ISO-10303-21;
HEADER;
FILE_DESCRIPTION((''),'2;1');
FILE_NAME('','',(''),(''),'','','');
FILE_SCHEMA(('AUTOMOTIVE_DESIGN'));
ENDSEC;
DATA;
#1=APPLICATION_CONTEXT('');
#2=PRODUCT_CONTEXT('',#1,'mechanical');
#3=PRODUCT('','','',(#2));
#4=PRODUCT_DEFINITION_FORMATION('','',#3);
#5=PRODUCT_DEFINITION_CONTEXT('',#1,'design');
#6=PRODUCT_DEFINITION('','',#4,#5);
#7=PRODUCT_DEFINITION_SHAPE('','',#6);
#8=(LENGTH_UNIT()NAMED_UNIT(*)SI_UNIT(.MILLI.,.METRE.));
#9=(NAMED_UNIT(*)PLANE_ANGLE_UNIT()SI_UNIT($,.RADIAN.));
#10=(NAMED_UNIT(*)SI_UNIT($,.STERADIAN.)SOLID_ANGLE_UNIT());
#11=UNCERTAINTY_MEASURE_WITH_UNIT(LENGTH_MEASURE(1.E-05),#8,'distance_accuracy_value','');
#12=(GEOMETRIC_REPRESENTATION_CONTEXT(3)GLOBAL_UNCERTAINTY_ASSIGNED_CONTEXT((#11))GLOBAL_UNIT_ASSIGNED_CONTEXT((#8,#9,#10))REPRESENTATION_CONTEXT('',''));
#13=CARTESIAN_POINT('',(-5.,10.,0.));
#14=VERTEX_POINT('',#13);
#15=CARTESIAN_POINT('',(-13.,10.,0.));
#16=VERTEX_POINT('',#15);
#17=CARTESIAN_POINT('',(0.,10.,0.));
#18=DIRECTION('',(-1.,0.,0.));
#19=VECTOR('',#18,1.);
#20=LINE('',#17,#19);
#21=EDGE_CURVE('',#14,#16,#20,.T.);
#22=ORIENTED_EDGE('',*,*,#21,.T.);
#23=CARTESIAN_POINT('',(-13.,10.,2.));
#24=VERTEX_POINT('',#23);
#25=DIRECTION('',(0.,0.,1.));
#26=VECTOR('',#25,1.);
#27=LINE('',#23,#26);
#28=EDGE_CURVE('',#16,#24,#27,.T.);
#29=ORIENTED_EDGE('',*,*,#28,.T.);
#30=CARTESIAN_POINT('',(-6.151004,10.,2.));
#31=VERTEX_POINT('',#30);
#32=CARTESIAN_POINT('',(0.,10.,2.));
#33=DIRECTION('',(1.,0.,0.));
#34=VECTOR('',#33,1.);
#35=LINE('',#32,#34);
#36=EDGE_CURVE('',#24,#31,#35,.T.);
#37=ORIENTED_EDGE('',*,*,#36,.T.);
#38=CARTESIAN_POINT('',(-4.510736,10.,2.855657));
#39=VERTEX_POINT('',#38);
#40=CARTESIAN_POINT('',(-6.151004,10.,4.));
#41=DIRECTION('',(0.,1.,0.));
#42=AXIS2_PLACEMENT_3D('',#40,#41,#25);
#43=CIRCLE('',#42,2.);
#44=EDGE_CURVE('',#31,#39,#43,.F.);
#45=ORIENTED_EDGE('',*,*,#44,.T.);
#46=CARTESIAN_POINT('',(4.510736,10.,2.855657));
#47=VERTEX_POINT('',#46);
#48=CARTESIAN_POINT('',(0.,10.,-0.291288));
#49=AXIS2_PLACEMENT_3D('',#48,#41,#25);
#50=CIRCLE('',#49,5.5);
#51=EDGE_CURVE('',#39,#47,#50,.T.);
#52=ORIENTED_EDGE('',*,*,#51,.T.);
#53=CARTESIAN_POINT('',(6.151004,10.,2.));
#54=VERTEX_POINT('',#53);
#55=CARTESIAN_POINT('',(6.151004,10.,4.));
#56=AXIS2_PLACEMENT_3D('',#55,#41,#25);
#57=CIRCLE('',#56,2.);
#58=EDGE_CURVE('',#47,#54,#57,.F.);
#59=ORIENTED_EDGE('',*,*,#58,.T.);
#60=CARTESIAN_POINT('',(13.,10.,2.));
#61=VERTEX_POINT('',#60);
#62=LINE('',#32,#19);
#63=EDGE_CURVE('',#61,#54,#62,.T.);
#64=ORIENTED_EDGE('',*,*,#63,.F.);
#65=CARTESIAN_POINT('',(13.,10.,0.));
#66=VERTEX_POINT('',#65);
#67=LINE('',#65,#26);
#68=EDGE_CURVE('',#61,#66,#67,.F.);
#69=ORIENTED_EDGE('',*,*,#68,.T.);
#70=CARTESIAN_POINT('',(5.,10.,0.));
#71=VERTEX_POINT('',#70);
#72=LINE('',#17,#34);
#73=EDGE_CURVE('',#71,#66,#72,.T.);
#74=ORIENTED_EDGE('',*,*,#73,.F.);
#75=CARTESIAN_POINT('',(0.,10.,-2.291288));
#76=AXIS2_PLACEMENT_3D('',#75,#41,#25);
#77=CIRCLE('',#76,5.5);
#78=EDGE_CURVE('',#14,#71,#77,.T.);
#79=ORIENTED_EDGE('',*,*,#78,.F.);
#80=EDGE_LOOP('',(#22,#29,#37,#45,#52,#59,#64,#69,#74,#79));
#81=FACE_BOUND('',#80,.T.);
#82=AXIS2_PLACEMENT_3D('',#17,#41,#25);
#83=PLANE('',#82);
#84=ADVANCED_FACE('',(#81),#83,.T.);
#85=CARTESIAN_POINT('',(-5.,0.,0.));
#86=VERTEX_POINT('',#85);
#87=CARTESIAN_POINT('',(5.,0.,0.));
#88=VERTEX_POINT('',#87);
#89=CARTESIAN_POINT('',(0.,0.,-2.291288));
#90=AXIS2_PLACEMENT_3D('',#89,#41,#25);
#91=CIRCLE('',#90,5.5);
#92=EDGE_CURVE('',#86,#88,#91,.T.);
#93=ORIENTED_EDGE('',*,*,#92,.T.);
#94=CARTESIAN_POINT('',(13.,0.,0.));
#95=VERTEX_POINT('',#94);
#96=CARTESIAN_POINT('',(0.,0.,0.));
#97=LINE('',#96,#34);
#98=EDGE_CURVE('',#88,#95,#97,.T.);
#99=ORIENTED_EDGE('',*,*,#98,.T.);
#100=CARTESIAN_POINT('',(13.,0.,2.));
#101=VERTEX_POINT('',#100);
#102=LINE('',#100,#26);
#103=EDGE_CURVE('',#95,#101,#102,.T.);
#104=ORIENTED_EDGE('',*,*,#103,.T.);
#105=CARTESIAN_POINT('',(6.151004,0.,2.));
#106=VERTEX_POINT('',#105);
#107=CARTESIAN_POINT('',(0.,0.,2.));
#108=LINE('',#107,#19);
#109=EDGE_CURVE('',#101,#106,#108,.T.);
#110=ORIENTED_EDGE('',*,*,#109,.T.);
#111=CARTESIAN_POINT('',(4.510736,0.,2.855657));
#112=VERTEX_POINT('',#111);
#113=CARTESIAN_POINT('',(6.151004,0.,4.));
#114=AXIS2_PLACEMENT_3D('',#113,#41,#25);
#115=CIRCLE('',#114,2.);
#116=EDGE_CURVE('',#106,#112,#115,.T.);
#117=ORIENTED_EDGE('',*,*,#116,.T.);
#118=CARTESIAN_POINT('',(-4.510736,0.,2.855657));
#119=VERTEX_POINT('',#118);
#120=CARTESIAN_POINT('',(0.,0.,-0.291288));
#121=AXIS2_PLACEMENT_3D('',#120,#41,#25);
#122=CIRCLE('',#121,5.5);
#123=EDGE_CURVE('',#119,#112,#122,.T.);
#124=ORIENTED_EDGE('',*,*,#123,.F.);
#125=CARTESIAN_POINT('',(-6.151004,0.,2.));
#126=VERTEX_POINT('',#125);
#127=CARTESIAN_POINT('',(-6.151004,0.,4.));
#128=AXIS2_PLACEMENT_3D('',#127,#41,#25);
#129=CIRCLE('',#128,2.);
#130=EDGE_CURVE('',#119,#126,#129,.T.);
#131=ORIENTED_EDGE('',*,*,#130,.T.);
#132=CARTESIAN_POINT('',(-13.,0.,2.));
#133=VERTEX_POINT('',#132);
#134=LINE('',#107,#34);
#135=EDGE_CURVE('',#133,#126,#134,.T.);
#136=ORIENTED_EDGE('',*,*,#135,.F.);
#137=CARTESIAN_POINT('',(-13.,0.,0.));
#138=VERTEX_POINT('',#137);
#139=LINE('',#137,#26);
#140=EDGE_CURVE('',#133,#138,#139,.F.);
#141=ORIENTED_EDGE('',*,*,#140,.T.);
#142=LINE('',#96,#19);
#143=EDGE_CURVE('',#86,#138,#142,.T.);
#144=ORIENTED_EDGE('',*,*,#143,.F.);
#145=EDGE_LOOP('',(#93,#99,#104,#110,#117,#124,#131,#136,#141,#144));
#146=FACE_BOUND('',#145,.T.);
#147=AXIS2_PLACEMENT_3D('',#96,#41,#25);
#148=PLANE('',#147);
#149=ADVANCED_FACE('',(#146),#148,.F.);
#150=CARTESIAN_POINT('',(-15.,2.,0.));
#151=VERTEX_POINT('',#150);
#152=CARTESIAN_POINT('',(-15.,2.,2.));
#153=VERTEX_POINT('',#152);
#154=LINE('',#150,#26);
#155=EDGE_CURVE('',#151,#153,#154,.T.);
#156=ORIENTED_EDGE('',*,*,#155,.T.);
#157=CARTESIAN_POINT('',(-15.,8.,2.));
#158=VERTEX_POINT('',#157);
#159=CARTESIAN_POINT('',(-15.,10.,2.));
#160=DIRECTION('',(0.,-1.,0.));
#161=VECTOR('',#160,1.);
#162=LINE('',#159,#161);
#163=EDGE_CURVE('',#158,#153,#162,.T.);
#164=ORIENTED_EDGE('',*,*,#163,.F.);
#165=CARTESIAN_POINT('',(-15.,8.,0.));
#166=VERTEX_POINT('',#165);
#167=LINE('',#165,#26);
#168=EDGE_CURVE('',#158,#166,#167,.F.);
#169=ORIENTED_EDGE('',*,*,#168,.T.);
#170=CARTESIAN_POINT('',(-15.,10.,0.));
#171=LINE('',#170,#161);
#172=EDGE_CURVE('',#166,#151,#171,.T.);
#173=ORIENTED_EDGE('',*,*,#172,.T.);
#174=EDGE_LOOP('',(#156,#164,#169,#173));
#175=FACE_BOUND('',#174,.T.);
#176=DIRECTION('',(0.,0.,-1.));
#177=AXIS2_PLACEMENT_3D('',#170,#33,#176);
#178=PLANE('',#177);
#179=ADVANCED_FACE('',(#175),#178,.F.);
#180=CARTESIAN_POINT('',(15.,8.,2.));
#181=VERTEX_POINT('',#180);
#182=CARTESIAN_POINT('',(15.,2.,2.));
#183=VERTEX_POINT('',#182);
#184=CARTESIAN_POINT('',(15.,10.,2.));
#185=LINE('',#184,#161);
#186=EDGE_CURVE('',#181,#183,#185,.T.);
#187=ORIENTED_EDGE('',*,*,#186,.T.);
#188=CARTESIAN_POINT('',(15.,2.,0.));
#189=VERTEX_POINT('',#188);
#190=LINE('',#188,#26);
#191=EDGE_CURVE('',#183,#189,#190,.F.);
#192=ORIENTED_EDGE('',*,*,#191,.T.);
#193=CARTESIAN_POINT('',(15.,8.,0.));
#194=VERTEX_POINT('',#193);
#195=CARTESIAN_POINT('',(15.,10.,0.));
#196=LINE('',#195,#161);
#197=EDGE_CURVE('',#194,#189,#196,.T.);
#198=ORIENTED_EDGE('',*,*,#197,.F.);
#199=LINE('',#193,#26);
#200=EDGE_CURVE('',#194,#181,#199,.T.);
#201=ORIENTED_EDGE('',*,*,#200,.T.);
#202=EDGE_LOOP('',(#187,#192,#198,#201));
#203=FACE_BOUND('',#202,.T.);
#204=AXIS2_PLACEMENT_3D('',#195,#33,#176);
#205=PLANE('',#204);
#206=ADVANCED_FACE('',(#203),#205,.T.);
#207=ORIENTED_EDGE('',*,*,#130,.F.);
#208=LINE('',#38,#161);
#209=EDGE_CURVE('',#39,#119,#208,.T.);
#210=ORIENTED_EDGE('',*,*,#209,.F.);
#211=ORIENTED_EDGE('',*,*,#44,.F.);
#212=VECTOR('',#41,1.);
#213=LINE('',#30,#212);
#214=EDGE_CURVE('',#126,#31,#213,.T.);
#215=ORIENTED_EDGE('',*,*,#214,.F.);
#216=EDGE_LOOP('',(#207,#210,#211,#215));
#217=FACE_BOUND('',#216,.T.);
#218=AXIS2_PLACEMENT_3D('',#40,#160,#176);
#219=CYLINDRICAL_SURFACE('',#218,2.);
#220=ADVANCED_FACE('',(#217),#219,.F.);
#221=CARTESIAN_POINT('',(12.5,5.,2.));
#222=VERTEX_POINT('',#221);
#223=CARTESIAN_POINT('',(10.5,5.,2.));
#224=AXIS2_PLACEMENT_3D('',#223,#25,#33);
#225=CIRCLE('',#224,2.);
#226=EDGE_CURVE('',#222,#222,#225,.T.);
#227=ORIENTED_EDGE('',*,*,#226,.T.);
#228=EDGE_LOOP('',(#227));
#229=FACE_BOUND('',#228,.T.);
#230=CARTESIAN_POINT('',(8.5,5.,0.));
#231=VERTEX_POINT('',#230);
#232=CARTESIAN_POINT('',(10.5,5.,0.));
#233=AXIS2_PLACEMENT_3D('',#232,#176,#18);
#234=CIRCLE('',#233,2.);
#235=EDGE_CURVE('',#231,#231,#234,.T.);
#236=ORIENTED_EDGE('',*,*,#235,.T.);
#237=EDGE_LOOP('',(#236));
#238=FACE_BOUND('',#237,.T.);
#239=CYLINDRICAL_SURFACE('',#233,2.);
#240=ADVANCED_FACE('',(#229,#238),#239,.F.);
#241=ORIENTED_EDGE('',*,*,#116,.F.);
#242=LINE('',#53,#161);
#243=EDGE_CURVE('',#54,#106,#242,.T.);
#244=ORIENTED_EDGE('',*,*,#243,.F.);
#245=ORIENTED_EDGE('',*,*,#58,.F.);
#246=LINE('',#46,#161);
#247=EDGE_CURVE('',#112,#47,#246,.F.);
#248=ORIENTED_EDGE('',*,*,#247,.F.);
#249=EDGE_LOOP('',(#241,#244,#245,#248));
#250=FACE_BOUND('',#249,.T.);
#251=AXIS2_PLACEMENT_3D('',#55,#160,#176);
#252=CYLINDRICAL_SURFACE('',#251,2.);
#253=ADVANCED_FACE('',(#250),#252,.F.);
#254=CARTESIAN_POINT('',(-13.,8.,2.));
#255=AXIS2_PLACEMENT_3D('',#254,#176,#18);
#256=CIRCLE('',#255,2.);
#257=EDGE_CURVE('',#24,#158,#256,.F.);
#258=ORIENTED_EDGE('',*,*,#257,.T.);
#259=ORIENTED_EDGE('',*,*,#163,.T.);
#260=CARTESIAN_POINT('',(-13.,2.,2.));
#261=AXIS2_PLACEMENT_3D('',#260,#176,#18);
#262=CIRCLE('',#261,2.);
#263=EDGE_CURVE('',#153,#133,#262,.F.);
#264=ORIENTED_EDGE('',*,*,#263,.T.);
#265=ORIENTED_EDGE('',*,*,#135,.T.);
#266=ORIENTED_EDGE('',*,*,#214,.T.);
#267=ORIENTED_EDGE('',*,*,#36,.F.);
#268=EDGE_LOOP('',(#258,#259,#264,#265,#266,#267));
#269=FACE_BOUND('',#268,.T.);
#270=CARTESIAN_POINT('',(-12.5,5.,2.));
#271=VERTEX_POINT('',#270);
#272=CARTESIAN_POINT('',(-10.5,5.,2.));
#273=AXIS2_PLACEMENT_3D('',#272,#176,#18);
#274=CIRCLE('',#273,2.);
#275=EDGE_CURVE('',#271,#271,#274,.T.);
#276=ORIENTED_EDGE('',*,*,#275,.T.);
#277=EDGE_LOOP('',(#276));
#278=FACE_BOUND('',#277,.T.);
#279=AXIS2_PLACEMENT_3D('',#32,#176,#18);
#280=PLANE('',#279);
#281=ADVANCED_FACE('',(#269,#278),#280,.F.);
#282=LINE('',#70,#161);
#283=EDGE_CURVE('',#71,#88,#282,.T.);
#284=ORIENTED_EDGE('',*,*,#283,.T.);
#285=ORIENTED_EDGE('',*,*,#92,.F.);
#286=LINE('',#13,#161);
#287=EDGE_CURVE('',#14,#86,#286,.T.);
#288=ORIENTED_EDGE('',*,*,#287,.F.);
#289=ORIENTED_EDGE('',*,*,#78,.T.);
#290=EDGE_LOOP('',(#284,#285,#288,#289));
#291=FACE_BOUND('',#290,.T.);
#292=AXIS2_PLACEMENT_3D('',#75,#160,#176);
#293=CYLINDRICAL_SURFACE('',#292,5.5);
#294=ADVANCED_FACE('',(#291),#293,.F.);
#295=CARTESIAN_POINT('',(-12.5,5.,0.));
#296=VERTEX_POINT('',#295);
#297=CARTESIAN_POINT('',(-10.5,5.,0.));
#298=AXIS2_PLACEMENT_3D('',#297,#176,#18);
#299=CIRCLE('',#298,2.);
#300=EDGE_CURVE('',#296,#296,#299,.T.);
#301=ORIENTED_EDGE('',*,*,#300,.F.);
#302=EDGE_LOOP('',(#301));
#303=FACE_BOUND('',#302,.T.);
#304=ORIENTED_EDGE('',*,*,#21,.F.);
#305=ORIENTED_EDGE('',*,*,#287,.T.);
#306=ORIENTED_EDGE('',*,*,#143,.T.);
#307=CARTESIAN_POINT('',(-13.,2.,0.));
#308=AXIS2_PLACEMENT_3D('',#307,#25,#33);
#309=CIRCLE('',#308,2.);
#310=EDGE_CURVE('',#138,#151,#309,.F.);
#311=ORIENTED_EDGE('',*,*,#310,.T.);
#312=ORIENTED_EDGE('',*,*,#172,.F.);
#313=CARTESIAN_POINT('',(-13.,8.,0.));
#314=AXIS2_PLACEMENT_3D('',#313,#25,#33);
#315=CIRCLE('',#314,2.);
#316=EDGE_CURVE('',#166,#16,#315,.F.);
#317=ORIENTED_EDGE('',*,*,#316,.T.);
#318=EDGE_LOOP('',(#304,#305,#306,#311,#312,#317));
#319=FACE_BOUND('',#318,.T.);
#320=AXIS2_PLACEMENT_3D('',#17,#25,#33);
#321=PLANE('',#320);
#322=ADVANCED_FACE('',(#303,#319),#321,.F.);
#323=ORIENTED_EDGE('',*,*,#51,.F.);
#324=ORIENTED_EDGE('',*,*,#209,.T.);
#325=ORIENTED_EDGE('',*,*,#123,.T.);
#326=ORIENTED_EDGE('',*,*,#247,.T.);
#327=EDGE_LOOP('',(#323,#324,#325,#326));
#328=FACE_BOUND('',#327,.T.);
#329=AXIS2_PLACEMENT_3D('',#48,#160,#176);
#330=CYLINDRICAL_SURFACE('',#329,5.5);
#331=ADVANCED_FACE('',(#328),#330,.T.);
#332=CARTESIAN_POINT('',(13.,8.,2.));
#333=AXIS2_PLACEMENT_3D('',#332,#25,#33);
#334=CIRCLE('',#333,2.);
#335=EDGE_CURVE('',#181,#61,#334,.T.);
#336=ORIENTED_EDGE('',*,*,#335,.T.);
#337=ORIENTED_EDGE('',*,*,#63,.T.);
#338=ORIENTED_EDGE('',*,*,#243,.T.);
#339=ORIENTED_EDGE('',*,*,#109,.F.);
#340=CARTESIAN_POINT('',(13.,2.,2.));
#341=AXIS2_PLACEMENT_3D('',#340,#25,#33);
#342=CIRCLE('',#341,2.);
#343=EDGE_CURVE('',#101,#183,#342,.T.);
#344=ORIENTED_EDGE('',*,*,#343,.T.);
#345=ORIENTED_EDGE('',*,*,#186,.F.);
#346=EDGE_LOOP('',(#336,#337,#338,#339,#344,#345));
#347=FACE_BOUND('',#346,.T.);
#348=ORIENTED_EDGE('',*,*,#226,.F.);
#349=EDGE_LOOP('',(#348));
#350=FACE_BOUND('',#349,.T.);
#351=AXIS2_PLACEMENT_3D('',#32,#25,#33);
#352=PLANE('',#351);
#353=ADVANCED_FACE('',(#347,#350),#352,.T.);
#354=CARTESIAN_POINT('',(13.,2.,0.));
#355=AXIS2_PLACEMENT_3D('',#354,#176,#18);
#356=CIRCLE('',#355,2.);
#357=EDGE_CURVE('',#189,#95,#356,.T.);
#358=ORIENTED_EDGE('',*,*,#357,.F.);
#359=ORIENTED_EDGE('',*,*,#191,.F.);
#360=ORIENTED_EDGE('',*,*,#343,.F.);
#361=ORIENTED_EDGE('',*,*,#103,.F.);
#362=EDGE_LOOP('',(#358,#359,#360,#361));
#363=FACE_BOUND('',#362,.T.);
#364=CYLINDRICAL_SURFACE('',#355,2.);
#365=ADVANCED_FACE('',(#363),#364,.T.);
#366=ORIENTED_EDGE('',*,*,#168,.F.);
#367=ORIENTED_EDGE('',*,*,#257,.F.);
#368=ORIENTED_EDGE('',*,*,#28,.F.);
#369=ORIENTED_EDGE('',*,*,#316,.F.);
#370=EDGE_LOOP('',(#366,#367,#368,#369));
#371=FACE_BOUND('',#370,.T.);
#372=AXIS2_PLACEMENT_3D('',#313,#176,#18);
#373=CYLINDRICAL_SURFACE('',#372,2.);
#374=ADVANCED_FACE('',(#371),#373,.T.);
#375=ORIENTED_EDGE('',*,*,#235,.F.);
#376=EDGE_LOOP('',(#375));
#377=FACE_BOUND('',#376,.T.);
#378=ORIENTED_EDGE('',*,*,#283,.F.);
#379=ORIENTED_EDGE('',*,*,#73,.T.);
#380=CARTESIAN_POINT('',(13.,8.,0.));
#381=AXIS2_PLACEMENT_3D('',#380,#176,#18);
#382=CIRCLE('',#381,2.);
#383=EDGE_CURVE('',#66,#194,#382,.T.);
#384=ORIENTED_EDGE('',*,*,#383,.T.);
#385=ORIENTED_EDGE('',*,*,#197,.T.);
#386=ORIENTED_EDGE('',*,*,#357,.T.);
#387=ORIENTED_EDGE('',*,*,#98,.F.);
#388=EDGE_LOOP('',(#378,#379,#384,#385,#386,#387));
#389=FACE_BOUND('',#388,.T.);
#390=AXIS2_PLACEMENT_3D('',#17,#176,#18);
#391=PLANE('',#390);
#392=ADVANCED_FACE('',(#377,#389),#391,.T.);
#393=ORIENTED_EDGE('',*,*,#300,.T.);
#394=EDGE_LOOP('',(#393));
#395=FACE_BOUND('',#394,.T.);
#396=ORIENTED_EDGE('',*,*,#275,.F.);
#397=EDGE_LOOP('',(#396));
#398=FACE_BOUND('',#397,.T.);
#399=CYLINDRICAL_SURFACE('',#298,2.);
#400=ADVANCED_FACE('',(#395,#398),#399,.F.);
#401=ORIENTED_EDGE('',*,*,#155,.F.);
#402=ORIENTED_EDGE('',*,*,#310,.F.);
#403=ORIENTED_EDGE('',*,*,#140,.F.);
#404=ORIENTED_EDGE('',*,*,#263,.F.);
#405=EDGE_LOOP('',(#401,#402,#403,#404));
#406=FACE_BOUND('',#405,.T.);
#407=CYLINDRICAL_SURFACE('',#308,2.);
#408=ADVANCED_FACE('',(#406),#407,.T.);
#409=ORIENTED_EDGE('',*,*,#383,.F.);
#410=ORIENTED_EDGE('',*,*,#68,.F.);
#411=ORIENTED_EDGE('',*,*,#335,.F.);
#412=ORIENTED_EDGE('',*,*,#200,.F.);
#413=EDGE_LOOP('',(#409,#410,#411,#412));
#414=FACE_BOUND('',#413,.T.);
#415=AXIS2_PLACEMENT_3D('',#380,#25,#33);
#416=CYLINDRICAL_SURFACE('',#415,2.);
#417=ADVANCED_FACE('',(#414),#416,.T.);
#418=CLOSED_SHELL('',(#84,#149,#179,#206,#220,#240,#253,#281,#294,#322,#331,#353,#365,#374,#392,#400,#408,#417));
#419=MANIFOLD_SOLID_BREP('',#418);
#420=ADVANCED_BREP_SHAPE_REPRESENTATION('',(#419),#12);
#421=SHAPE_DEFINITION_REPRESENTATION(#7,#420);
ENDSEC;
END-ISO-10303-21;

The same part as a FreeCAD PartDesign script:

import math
import FreeCAD as App
import Part
import Sketcher


def edges_at(feature, points):
    """Names of the edges that pass closest to the given points."""
    edges = feature.Shape.Edges
    near = lambda p: min(range(len(edges)), key=lambda i: edges[i].distToShape(Part.Vertex(*p))[0])
    return sorted({f"Edge{near(p) + 1}" for p in points})

doc = App.newDocument("Part")
body = doc.addObject("PartDesign::Body", "Body")

# Sketch on XZ plane
sketch1 = body.newObject("Sketcher::SketchObject", "Sketch")
sketch1.AttachmentSupport = (doc.getObject("XZ_Plane"), [""])
sketch1.MapMode = "FlatFace"
sketch1.addGeometry([
    Part.LineSegment(App.Vector(-15, 2, 0), App.Vector(-5, 2, 0)),  # 0
    Part.ArcOfCircle(Part.Circle(App.Vector(0, -0.3, 0), App.Vector(0, 0, 1), 5.5), math.radians(25), math.radians(155)),  # 1
    Part.LineSegment(App.Vector(5, 2, 0), App.Vector(15, 2, 0)),  # 2
    Part.LineSegment(App.Vector(15, 2, 0), App.Vector(15, 0, 0)),  # 3
    Part.LineSegment(App.Vector(15, 0, 0), App.Vector(5, 0, 0)),  # 4
    Part.ArcOfCircle(Part.Circle(App.Vector(0, -2.3, 0), App.Vector(0, 0, 1), 5.5), math.radians(25), math.radians(155)),  # 5
    Part.LineSegment(App.Vector(-5, 0, 0), App.Vector(-15, 0, 0)),  # 6
    Part.LineSegment(App.Vector(-15, 0, 0), App.Vector(-15, 2, 0)),  # 7
], False)
sketch1.addConstraint([
    Sketcher.Constraint("Coincident", 0, 2, 1, 2),
    Sketcher.Constraint("Coincident", 1, 1, 2, 1),
    Sketcher.Constraint("Coincident", 2, 2, 3, 1),
    Sketcher.Constraint("Coincident", 3, 2, 4, 1),
    Sketcher.Constraint("Coincident", 4, 2, 5, 1),
    Sketcher.Constraint("Coincident", 5, 2, 6, 1),
    Sketcher.Constraint("Coincident", 6, 2, 7, 1),
    Sketcher.Constraint("Coincident", 7, 2, 0, 1),
    Sketcher.Constraint("Horizontal", 0),
    Sketcher.Constraint("Horizontal", 2),
    Sketcher.Constraint("Vertical", 3),
    Sketcher.Constraint("Horizontal", 4),
    Sketcher.Constraint("Horizontal", 6),
    Sketcher.Constraint("Vertical", 7),
    Sketcher.Constraint("Equal", 1, 5),
    Sketcher.Constraint("Symmetric", 4, 2, 5, 2, -1, 1),
    Sketcher.Constraint("Symmetric", 0, 2, 1, 1, -2),
    Sketcher.Constraint("Symmetric", 3, 2, 6, 2, -2),
    Sketcher.Constraint("Vertical", 1, 1, 4, 2),
    Sketcher.Constraint("Radius", 1, 5.5),
    Sketcher.Constraint("DistanceX", 0, 1, 0, 2, 10.0),
    Sketcher.Constraint("DistanceY", 3, 2, 3, 1, 2.0),
    Sketcher.Constraint("DistanceX", 0, 2, -1, 1, 5.0),
])
pad1 = body.newObject("PartDesign::Pad", "Pad")
pad1.Profile = sketch1
pad1.Length = 10
pad1.Reversed = True
doc.recompute()

fillet = body.newObject("PartDesign::Fillet", "Fillet")
fillet.Base = (pad1, edges_at(pad1, [(5, 5, 2), (-5, 5, 2)]))
fillet.Radius = 2
doc.recompute()

fillet2 = body.newObject("PartDesign::Fillet", "Fillet001")
fillet2.Base = (fillet, edges_at(fillet, [
    (15, 0, 1),
    (15, 10, 1),
    (-15, 10, 1),
    (-15, 0, 1),
]))
fillet2.Radius = 2

# Sketch on XY plane
sketch2 = body.newObject("Sketcher::SketchObject", "Sketch001")
sketch2.AttachmentSupport = (doc.getObject("XY_Plane"), [""])
sketch2.MapMode = "FlatFace"
sketch2.addGeometry([
    Part.Circle(App.Vector(10.5, 5, 0), App.Vector(0, 0, 1), 2),
    Part.Circle(App.Vector(-10.5, 5, 0), App.Vector(0, 0, 1), 2),
], False)
sketch2.addConstraint([
    Sketcher.Constraint("Equal", 0, 1),
    Sketcher.Constraint("Symmetric", 0, 3, 1, 3, -2),
    Sketcher.Constraint("Diameter", 0, 4.0),
    Sketcher.Constraint("DistanceY", -1, 1, 0, 3, 5.0),
    Sketcher.Constraint("DistanceX", 1, 3, 0, 3, 21.0),
])
doc.recompute()
hole = body.newObject("PartDesign::Hole", "Hole")
hole.Profile = sketch2
hole.ThreadType = "None"
hole.Diameter = 4
hole.DepthType = "ThroughAll"
hole.Reversed = True

doc.recompute()
